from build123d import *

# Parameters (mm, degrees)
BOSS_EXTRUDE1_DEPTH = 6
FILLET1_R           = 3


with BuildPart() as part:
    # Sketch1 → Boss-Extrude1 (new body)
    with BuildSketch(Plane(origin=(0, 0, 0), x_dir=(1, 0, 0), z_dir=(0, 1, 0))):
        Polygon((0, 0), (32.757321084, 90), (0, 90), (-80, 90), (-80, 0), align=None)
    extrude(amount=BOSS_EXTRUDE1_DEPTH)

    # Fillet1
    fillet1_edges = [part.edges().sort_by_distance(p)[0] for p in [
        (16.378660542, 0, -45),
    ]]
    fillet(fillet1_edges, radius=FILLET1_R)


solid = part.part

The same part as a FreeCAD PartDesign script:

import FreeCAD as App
import Part
import Sketcher
from FreeCAD import Vector
Q = App.Units.Quantity


def edges_at(feature, points):
    """Names of the edges that pass closest to the given points."""
    edges = feature.Shape.Edges
    near = lambda p: min(range(len(edges)), key=lambda i: edges[i].distToShape(Part.Vertex(*p))[0])
    return sorted({f"Edge{near(p) + 1}" for p in points})


def add_polygon(sketch, points):
    """Adds a closed chain of lines whose ends are joined by coincident constraints."""
    first, n = sketch.GeometryCount, len(points)
    for a, b in zip(points, points[1:] + points[:1]):
        sketch.addGeometry(Part.LineSegment(App.Vector(*a, 0), App.Vector(*b, 0)), False)
    for i in range(n):
        sketch.addConstraint(Sketcher.Constraint("Coincident", first + i, 2, first + (i + 1) % n, 1))

doc = App.newDocument("Part")
params = doc.addObject("Spreadsheet::Sheet", "Params")
for row, (alias, value) in enumerate([
    ("sketch1_width", "80 mm"),
    ("sketch1_height", "90 mm"),
    ("pad1_length", "6 mm"),
    ("fillet_radius", "3 mm"),
], start=1):
    params.set(f"A{row}", alias)
    params.set(f"B{row}", "=" + value)
    params.setAlias(f"B{row}", alias)

body = doc.addObject("PartDesign::Body", "Body")

sketch1 = body.newObject("Sketcher::SketchObject", "Sketch")
sketch1.AttachmentSupport = (doc.getObject("XZ_Plane"), [""])
sketch1.MapMode = "FlatFace"
add_polygon(sketch1, [(0, 0), (32.757321, -90), (-80, -90), (-80, 0)])
sketch1.addConstraint(Sketcher.Constraint("Horizontal", 1))
sketch1.addConstraint(Sketcher.Constraint("Vertical", 2))
sketch1.addConstraint(Sketcher.Constraint("Horizontal", 3))
sketch1.addConstraint(Sketcher.Constraint("Coincident", 3, 2, -1, 1))
sketch1.addConstraint(Sketcher.Constraint("DistanceX", 3, 1, 3, 2, 80.0))
sketch1.addConstraint(Sketcher.Constraint("DistanceY", 2, 1, 2, 2, 90.0))
sketch1.addConstraint(Sketcher.Constraint("Angle", 0, Q("-70 deg")))
sketch1.setExpression("Constraints[8]", "Params.sketch1_width")
sketch1.setExpression("Constraints[9]", "Params.sketch1_height")
pad1 = body.newObject("PartDesign::Pad", "Pad")
pad1.Profile = sketch1
pad1.setExpression("Length", "Params.pad1_length")
pad1.Reversed = True
doc.recompute()

fillet = body.newObject("PartDesign::Fillet", "Fillet")
fillet.Base = (pad1, edges_at(pad1, [(16.379, 0, -45)]))
fillet.setExpression("Radius", "Params.fillet_radius")

doc.recompute()
